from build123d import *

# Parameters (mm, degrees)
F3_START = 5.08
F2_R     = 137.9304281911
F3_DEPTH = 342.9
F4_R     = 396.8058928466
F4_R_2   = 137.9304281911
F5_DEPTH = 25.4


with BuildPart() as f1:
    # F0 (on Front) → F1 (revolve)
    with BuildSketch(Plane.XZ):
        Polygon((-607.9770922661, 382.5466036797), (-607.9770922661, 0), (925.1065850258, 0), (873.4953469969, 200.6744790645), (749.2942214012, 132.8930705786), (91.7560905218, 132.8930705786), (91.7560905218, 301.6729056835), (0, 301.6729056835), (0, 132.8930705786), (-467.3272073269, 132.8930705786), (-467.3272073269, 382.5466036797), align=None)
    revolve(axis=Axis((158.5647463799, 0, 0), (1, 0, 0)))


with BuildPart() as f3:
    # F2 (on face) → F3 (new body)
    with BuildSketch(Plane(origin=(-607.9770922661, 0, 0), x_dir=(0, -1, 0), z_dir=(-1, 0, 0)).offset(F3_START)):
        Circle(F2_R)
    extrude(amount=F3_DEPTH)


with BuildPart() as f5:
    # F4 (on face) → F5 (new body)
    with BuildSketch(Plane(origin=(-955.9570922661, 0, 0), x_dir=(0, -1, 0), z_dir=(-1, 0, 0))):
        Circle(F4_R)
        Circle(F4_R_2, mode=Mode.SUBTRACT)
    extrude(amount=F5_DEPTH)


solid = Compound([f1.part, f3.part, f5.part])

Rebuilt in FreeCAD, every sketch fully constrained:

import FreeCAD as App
import Part
import Sketcher
Q = App.Units.Quantity


def add_polygon(sketch, points):
    """Adds a closed chain of lines whose ends are joined by coincident constraints."""
    first, n = sketch.GeometryCount, len(points)
    for a, b in zip(points, points[1:] + points[:1]):
        sketch.addGeometry(Part.LineSegment(App.Vector(*a, 0), App.Vector(*b, 0)), False)
    for i in range(n):
        sketch.addConstraint(Sketcher.Constraint("Coincident", first + i, 2, first + (i + 1) % n, 1))

doc = App.newDocument("Part")
body = doc.addObject("PartDesign::Body", "Body")

# Sketch on XZ plane
sketch1 = doc.addObject("Sketcher::SketchObject", "Sketch")
body.addObject(sketch1)
sketch1.AttachmentSupport = (doc.XZ_Plane, [""])
sketch1.MapMode = "FlatFace"
add_polygon(sketch1, [(-607.977092, 382.546604), (-607.977092, 0), (925.106585, 0), (873.495347, 200.674479), (749.294221, 132.893071), (91.756091, 132.893071), (91.756091, 301.672906), (0, 301.672906), (0, 132.893071), (-467.327207, 132.893071), (-467.327207, 382.546604)])  # lines 0-10
sketch1.addConstraint(Sketcher.Constraint("Vertical", 0))
sketch1.addConstraint(Sketcher.Constraint("Horizontal", 1))
sketch1.addConstraint(Sketcher.Constraint("Horizontal", 4))
sketch1.addConstraint(Sketcher.Constraint("Vertical", 5))
sketch1.addConstraint(Sketcher.Constraint("Horizontal", 6))
sketch1.addConstraint(Sketcher.Constraint("Vertical", 7))
sketch1.addConstraint(Sketcher.Constraint("Horizontal", 8))
sketch1.addConstraint(Sketcher.Constraint("Vertical", 9))
sketch1.addConstraint(Sketcher.Constraint("Horizontal", 10))
sketch1.addConstraint(Sketcher.Constraint("PointOnObject", 0, 2, -1))
sketch1.addConstraint(Sketcher.Constraint("PointOnObject", 6, 2, -2))
sketch1.addConstraint(Sketcher.Constraint("Horizontal", 4, 2, 7, 2))
sketch1.addConstraint(Sketcher.Constraint("DistanceX", 4, 2, 4, 1, 657.538131))
sketch1.addConstraint(Sketcher.Constraint("DistanceX", 6, 2, 6, 1, 91.756091))
sketch1.addConstraint(Sketcher.Constraint("Distance", 2, 207.205131))
sketch1.addConstraint(Sketcher.Constraint("DistanceX", 1, 1, 1, 2, 1533.083677))
sketch1.addConstraint(Sketcher.Constraint("DistanceX", 8, 2, 8, 1, 467.327207))
sketch1.addConstraint(Sketcher.Constraint("DistanceX", 10, 2, 10, 1, 140.649885))
sketch1.addConstraint(Sketcher.Constraint("DistanceY", 0, 2, 0, 1, 382.546604))
sketch1.addConstraint(Sketcher.Constraint("DistanceY", 5, 1, 5, 2, 168.779835))
sketch1.addConstraint(Sketcher.Constraint("DistanceY", 9, 1, 9, 2, 249.653533))
sketch1.addConstraint(Sketcher.Constraint("DistanceY", -1, 1, 2, 2, 200.674479))
revolution = doc.addObject("PartDesign::Revolution", "Revolution")
body.addObject(revolution)
revolution.Profile = sketch1
revolution.ReferenceAxis = (sketch1, ["H_Axis"])
revolution.Angle = 360
body2 = doc.addObject("PartDesign::Body", "Body001")

# Sketch on YZ plane
sketch2 = doc.addObject("Sketcher::SketchObject", "Sketch001")
body2.addObject(sketch2)
sketch2.AttachmentSupport = (doc.getObject("YZ_Plane001"), [""])
sketch2.MapMode = "FlatFace"
sketch2.AttachmentOffset = App.Placement(App.Vector(0, 0, -613.057092), App.Rotation())
sketch2.addGeometry(Part.Circle(App.Vector(0, 0, 0), App.Vector(0, 0, 1), 137.930428), False)
sketch2.addConstraint(Sketcher.Constraint("Coincident", 0, 3, -1, 1))
sketch2.addConstraint(Sketcher.Constraint("Diameter", 0, 275.860856))
pad1 = doc.addObject("PartDesign::Pad", "Pad")
body2.addObject(pad1)
pad1.Profile = sketch2
pad1.Length = Q("13.5 in")
pad1.Reversed = True
body3 = doc.addObject("PartDesign::Body", "Body002")

# Sketch on YZ plane
sketch3 = doc.addObject("Sketcher::SketchObject", "Sketch002")
body3.addObject(sketch3)
sketch3.AttachmentSupport = (doc.getObject("YZ_Plane002"), [""])
sketch3.MapMode = "FlatFace"
sketch3.AttachmentOffset = App.Placement(App.Vector(0, 0, -955.957092), App.Rotation())
sketch3.addGeometry(Part.Circle(App.Vector(0, 0, 0), App.Vector(0, 0, 1), 396.805893), False)
sketch3.addGeometry(Part.Circle(App.Vector(0, 0, 0), App.Vector(0, 0, 1), 137.930428), False)
sketch3.addConstraint(Sketcher.Constraint("Coincident", 0, 3, -1, 1))
sketch3.addConstraint(Sketcher.Constraint("Coincident", 1, 3, -1, 1))
sketch3.addConstraint(Sketcher.Constraint("Diameter", 0, 793.611786))
sketch3.addConstraint(Sketcher.Constraint("Diameter", 1, 275.860856))
pad2 = doc.addObject("PartDesign::Pad", "Pad001")
body3.addObject(pad2)
pad2.Profile = sketch3
pad2.Length = Q("1 in")
pad2.Reversed = True

doc.recompute()
